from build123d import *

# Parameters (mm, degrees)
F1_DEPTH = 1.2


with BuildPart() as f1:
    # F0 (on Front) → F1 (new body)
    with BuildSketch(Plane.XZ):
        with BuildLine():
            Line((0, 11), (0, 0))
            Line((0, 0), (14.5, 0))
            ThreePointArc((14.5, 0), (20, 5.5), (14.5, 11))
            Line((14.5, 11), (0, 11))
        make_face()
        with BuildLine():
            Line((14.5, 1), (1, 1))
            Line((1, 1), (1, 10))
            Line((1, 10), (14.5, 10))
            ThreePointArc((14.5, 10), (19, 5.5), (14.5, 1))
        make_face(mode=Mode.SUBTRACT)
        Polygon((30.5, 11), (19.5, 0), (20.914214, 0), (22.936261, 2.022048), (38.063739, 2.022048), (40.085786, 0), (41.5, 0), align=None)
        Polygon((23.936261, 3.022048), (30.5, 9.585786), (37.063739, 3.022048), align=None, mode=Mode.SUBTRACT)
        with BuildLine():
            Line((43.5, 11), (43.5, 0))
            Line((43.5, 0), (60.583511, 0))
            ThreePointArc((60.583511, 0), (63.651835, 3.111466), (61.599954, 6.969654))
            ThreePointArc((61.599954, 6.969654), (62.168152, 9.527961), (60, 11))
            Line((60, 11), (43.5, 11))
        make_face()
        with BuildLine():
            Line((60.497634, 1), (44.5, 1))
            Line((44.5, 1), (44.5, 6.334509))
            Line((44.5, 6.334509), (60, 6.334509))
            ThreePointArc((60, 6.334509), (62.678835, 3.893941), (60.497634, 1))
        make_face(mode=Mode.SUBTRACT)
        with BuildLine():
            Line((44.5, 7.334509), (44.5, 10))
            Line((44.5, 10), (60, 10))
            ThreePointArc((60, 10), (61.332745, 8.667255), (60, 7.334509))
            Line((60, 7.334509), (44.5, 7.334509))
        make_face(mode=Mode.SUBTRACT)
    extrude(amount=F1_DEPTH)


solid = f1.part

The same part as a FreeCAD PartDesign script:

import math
import FreeCAD as App
import Part
import Sketcher
from FreeCAD import Vector

doc = App.newDocument("Part")
params = doc.addObject("Spreadsheet::Sheet", "Params")
for row, (alias, value) in enumerate([
    ("sketch1_radius", "5.5 mm"),
    ("sketch1_radius2", "4.5 mm"),
    ("sketch1_width", "14.5 mm"),
    ("sketch1_width2", "13.5 mm"),
    ("sketch1_width3", "16.5 mm"),
    ("pad1_length", "1.2 mm"),
], start=1):
    params.set(f"A{row}", alias)
    params.set(f"B{row}", "=" + value)
    params.setAlias(f"B{row}", alias)

body = doc.addObject("PartDesign::Body", "Body")
body.AllowCompound = True

# Sketch on XZ plane
sketch1 = body.newObject("Sketcher::SketchObject", "Sketch")
sketch1.AttachmentSupport = (doc.getObject("XZ_Plane"), [""])
sketch1.MapMode = "FlatFace"
sketch1.addGeometry(Part.LineSegment(Vector(0, 11, 0), Vector(0, 0, 0)), False)
sketch1.addGeometry(Part.LineSegment(Vector(0, 0, 0), Vector(14.5, 0, 0)), False)
sketch1.addGeometry(Part.ArcOfCircle(Part.Circle(Vector(14.5, 5.5, 0), Vector(0, 0, 1), 5.5), math.radians(-90), math.radians(90)), False)
sketch1.addGeometry(Part.LineSegment(Vector(14.5, 11, 0), Vector(0, 11, 0)), False)
sketch1.addGeometry(Part.ArcOfCircle(Part.Circle(Vector(14.5, 5.5, 0), Vector(0, 0, 1), 4.5), math.radians(-90), math.radians(90)), False)
sketch1.addGeometry(Part.LineSegment(Vector(14.5, 1, 0), Vector(1, 1, 0)), False)
sketch1.addGeometry(Part.LineSegment(Vector(1, 1, 0), Vector(1, 10, 0)), False)
sketch1.addGeometry(Part.LineSegment(Vector(1, 10, 0), Vector(14.5, 10, 0)), False)
sketch1.addGeometry(Part.LineSegment(Vector(30.5, 11, 0), Vector(19.5, 0, 0)), False)
sketch1.addGeometry(Part.LineSegment(Vector(19.5, 0, 0), Vector(20.9, 0, 0)), False)
sketch1.addGeometry(Part.LineSegment(Vector(20.9, 0, 0), Vector(22.9, 2, 0)), False)
sketch1.addGeometry(Part.LineSegment(Vector(22.9, 2, 0), Vector(38.1, 2, 0)), False)
sketch1.addGeometry(Part.LineSegment(Vector(38.1, 2, 0), Vector(40.1, 0, 0)), False)
sketch1.addGeometry(Part.LineSegment(Vector(40.1, 0, 0), Vector(41.5, 0, 0)), False)
sketch1.addGeometry(Part.LineSegment(Vector(41.5, 0, 0), Vector(30.5, 11, 0)), False)
sketch1.addGeometry(Part.LineSegment(Vector(37.1, 3, 0), Vector(23.9, 3, 0)), False)
sketch1.addGeometry(Part.LineSegment(Vector(23.9, 3, 0), Vector(30.5, 9.6, 0)), False)
sketch1.addGeometry(Part.LineSegment(Vector(30.5, 9.6, 0), Vector(37.1, 3, 0)), False)
sketch1.addGeometry(Part.LineSegment(Vector(43.5, 11, 0), Vector(43.5, 0, 0)), False)
sketch1.addGeometry(Part.LineSegment(Vector(43.5, 0, 0), Vector(60.6, 0, 0)), False)
sketch1.addGeometry(Part.ArcOfCircle(Part.Circle(Vector(60, 3.6, 0), Vector(0, 0, 1), 3.7), math.radians(-81), math.radians(64)), False)
sketch1.addGeometry(Part.ArcOfCircle(Part.Circle(Vector(60, 8.7, 0), Vector(0, 0, 1), 2.3), math.radians(-47), math.radians(90)), False)
sketch1.addGeometry(Part.LineSegment(Vector(60, 11, 0), Vector(43.5, 11, 0)), False)
sketch1.addGeometry(Part.ArcOfCircle(Part.Circle(Vector(60, 3.6, 0), Vector(0, 0, 1), 2.7), math.radians(-79), math.radians(90)), False)
sketch1.addGeometry(Part.LineSegment(Vector(60.5, 1, 0), Vector(44.5, 1, 0)), False)
sketch1.addGeometry(Part.LineSegment(Vector(44.5, 1, 0), Vector(44.5, 6.3, 0)), False)
sketch1.addGeometry(Part.LineSegment(Vector(44.5, 6.3, 0), Vector(60, 6.3, 0)), False)
sketch1.addGeometry(Part.LineSegment(Vector(60, 7.3, 0), Vector(44.5, 7.3, 0)), False)
sketch1.addGeometry(Part.LineSegment(Vector(44.5, 7.3, 0), Vector(44.5, 10, 0)), False)
sketch1.addGeometry(Part.LineSegment(Vector(44.5, 10, 0), Vector(60, 10, 0)), False)
sketch1.addGeometry(Part.ArcOfCircle(Part.Circle(Vector(60, 8.7, 0), Vector(0, 0, 1), 1.3), math.radians(-90), math.radians(90)), False)
sketch1.addConstraint(Sketcher.Constraint("Coincident", 0, 2, 1, 1))
sketch1.addConstraint(Sketcher.Constraint("Tangent", 1, 2, 2, 1))
sketch1.addConstraint(Sketcher.Constraint("Tangent", 2, 2, 3, 1))
sketch1.addConstraint(Sketcher.Constraint("Coincident", 3, 2, 0, 1))
sketch1.addConstraint(Sketcher.Constraint("Tangent", 4, 1, 5, 1))
sketch1.addConstraint(Sketcher.Constraint("Coincident", 5, 2, 6, 1))
sketch1.addConstraint(Sketcher.Constraint("Coincident", 6, 2, 7, 1))
sketch1.addConstraint(Sketcher.Constraint("Tangent", 7, 2, 4, 2))
sketch1.addConstraint(Sketcher.Constraint("Coincident", 8, 2, 9, 1))
sketch1.addConstraint(Sketcher.Constraint("Coincident", 9, 2, 10, 1))
sketch1.addConstraint(Sketcher.Constraint("Coincident", 10, 2, 11, 1))
sketch1.addConstraint(Sketcher.Constraint("Coincident", 11, 2, 12, 1))
sketch1.addConstraint(Sketcher.Constraint("Coincident", 12, 2, 13, 1))
sketch1.addConstraint(Sketcher.Constraint("Coincident", 13, 2, 14, 1))
sketch1.addConstraint(Sketcher.Constraint("Coincident", 14, 2, 8, 1))
sketch1.addConstraint(Sketcher.Constraint("Coincident", 15, 2, 16, 1))
sketch1.addConstraint(Sketcher.Constraint("Coincident", 16, 2, 17, 1))
sketch1.addConstraint(Sketcher.Constraint("Coincident", 17, 2, 15, 1))
sketch1.addConstraint(Sketcher.Constraint("Coincident", 18, 2, 19, 1))
sketch1.addConstraint(Sketcher.Constraint("Coincident", 19, 2, 20, 1))
sketch1.addConstraint(Sketcher.Constraint("Coincident", 20, 2, 21, 1))
sketch1.addConstraint(Sketcher.Constraint("Tangent", 21, 2, 22, 1))
sketch1.addConstraint(Sketcher.Constraint("Coincident", 22, 2, 18, 1))
sketch1.addConstraint(Sketcher.Constraint("Coincident", 23, 1, 24, 1))
sketch1.addConstraint(Sketcher.Constraint("Coincident", 24, 2, 25, 1))
sketch1.addConstraint(Sketcher.Constraint("Coincident", 25, 2, 26, 1))
sketch1.addConstraint(Sketcher.Constraint("Tangent", 26, 2, 23, 2))
sketch1.addConstraint(Sketcher.Constraint("Coincident", 27, 2, 28, 1))
sketch1.addConstraint(Sketcher.Constraint("Coincident", 28, 2, 29, 1))
sketch1.addConstraint(Sketcher.Constraint("Tangent", 29, 2, 30, 2))
sketch1.addConstraint(Sketcher.Constraint("Tangent", 30, 1, 27, 1))
sketch1.addConstraint(Sketcher.Constraint("Vertical", 0))
sketch1.addConstraint(Sketcher.Constraint("Horizontal", 1))
sketch1.addConstraint(Sketcher.Constraint("Horizontal", 3))
sketch1.addConstraint(Sketcher.Constraint("Horizontal", 5))
sketch1.addConstraint(Sketcher.Constraint("Vertical", 6))
sketch1.addConstraint(Sketcher.Constraint("Horizontal", 7))
sketch1.addConstraint(Sketcher.Constraint("Horizontal", 9))
sketch1.addConstraint(Sketcher.Constraint("Horizontal", 11))
sketch1.addConstraint(Sketcher.Constraint("Horizontal", 13))
sketch1.addConstraint(Sketcher.Constraint("Horizontal", 15))
sketch1.addConstraint(Sketcher.Constraint("Vertical", 18))
sketch1.addConstraint(Sketcher.Constraint("Horizontal", 19))
sketch1.addConstraint(Sketcher.Constraint("Horizontal", 22))
sketch1.addConstraint(Sketcher.Constraint("Horizontal", 24))
sketch1.addConstraint(Sketcher.Constraint("Vertical", 25))
sketch1.addConstraint(Sketcher.Constraint("Horizontal", 26))
sketch1.addConstraint(Sketcher.Constraint("Horizontal", 27))
sketch1.addConstraint(Sketcher.Constraint("Vertical", 28))
sketch1.addConstraint(Sketcher.Constraint("Horizontal", 29))
sketch1.addConstraint(Sketcher.Constraint("Coincident", 0, 2, -1, 1))
sketch1.addConstraint(Sketcher.Constraint("Coincident", 4, 3, 2, 3))
sketch1.addConstraint(Sketcher.Constraint("Coincident", 23, 3, 20, 3))
sketch1.addConstraint(Sketcher.Constraint("Coincident", 30, 3, 21, 3))
sketch1.addConstraint(Sketcher.Constraint("PointOnObject", 8, 2, -1))
sketch1.addConstraint(Sketcher.Constraint("PointOnObject", 12, 2, -1))
sketch1.addConstraint(Sketcher.Constraint("PointOnObject", 18, 2, -1))
sketch1.addConstraint(Sketcher.Constraint("Parallel", 8, 10))
sketch1.addConstraint(Sketcher.Constraint("Perpendicular", 10, 12))
sketch1.addConstraint(Sketcher.Constraint("Parallel", 12, 14))
sketch1.addConstraint(Sketcher.Constraint("Perpendicular", 14, 16))
sketch1.addConstraint(Sketcher.Constraint("Perpendicular", 16, 17))
sketch1.addConstraint(Sketcher.Constraint("Horizontal", 3, 2, 14, 2))
sketch1.addConstraint(Sketcher.Constraint("Horizontal", 14, 2, 21, 2))
sketch1.addConstraint(Sketcher.Constraint("Horizontal", 5, 2, 23, 1))
sketch1.addConstraint(Sketcher.Constraint("Horizontal", 7, 2, 28, 2))
sketch1.addConstraint(Sketcher.Constraint("Vertical", 20, 3, 21, 3))
sketch1.addConstraint(Sketcher.Constraint("Vertical", 14, 2, 16, 2))
sketch1.addConstraint(Sketcher.Constraint("Vertical", 25, 2, 27, 2))
sketch1.addConstraint(Sketcher.Constraint("Equal", 9, 13))
sketch1.addConstraint(Sketcher.Constraint("Equal", 10, 12))
sketch1.addConstraint(Sketcher.Constraint("Radius", 2, 5.5))
sketch1.addConstraint(Sketcher.Constraint("Radius", 4, 4.5))
sketch1.addConstraint(Sketcher.Constraint("DistanceX", 1, 1, 1, 2, 14.5))
sketch1.addConstraint(Sketcher.Constraint("DistanceX", 5, 2, 5, 1, 13.5))
sketch1.addConstraint(Sketcher.Constraint("DistanceX", 22, 2, 22, 1, 16.5))
sketch1.addConstraint(Sketcher.Constraint("DistanceX", 26, 1, 26, 2, 15.5))
sketch1.addConstraint(Sketcher.Constraint("DistanceX", -1, 1, 20, 3, 60.0))
sketch1.addConstraint(Sketcher.Constraint("DistanceX", 1, 2, 8, 2, 5.0))
sketch1.addConstraint(Sketcher.Constraint("DistanceX", 10, 2, 15, 2, 1.0))
sketch1.addConstraint(Sketcher.Constraint("DistanceY", 10, 2, 15, 2, 1.0))
sketch1.addConstraint(Sketcher.Constraint("DistanceY", 25, 2, 27, 2, 1.0))
sketch1.addConstraint(Sketcher.Constraint("Radius", 20, 3.690466))
sketch1.addConstraint(Sketcher.Constraint("Radius", 21, 2.332746))
sketch1.addConstraint(Sketcher.Constraint("Radius", 23, 2.690466))
sketch1.addConstraint(Sketcher.Constraint("Distance", 16, 9.282528))
sketch1.addConstraint(Sketcher.Constraint("DistanceX", 9, 1, 9, 2, 1.414214))
sketch1.setExpression("Constraints[71]", "Params.sketch1_radius")
sketch1.setExpression("Constraints[72]", "Params.sketch1_radius2")
sketch1.setExpression("Constraints[73]", "Params.sketch1_width")
sketch1.setExpression("Constraints[74]", "Params.sketch1_width2")
sketch1.setExpression("Constraints[75]", "Params.sketch1_width3")
pad1 = body.newObject("PartDesign::Pad", "Pad")
pad1.Profile = sketch1
pad1.setExpression("Length", "Params.pad1_length")

doc.recompute()
